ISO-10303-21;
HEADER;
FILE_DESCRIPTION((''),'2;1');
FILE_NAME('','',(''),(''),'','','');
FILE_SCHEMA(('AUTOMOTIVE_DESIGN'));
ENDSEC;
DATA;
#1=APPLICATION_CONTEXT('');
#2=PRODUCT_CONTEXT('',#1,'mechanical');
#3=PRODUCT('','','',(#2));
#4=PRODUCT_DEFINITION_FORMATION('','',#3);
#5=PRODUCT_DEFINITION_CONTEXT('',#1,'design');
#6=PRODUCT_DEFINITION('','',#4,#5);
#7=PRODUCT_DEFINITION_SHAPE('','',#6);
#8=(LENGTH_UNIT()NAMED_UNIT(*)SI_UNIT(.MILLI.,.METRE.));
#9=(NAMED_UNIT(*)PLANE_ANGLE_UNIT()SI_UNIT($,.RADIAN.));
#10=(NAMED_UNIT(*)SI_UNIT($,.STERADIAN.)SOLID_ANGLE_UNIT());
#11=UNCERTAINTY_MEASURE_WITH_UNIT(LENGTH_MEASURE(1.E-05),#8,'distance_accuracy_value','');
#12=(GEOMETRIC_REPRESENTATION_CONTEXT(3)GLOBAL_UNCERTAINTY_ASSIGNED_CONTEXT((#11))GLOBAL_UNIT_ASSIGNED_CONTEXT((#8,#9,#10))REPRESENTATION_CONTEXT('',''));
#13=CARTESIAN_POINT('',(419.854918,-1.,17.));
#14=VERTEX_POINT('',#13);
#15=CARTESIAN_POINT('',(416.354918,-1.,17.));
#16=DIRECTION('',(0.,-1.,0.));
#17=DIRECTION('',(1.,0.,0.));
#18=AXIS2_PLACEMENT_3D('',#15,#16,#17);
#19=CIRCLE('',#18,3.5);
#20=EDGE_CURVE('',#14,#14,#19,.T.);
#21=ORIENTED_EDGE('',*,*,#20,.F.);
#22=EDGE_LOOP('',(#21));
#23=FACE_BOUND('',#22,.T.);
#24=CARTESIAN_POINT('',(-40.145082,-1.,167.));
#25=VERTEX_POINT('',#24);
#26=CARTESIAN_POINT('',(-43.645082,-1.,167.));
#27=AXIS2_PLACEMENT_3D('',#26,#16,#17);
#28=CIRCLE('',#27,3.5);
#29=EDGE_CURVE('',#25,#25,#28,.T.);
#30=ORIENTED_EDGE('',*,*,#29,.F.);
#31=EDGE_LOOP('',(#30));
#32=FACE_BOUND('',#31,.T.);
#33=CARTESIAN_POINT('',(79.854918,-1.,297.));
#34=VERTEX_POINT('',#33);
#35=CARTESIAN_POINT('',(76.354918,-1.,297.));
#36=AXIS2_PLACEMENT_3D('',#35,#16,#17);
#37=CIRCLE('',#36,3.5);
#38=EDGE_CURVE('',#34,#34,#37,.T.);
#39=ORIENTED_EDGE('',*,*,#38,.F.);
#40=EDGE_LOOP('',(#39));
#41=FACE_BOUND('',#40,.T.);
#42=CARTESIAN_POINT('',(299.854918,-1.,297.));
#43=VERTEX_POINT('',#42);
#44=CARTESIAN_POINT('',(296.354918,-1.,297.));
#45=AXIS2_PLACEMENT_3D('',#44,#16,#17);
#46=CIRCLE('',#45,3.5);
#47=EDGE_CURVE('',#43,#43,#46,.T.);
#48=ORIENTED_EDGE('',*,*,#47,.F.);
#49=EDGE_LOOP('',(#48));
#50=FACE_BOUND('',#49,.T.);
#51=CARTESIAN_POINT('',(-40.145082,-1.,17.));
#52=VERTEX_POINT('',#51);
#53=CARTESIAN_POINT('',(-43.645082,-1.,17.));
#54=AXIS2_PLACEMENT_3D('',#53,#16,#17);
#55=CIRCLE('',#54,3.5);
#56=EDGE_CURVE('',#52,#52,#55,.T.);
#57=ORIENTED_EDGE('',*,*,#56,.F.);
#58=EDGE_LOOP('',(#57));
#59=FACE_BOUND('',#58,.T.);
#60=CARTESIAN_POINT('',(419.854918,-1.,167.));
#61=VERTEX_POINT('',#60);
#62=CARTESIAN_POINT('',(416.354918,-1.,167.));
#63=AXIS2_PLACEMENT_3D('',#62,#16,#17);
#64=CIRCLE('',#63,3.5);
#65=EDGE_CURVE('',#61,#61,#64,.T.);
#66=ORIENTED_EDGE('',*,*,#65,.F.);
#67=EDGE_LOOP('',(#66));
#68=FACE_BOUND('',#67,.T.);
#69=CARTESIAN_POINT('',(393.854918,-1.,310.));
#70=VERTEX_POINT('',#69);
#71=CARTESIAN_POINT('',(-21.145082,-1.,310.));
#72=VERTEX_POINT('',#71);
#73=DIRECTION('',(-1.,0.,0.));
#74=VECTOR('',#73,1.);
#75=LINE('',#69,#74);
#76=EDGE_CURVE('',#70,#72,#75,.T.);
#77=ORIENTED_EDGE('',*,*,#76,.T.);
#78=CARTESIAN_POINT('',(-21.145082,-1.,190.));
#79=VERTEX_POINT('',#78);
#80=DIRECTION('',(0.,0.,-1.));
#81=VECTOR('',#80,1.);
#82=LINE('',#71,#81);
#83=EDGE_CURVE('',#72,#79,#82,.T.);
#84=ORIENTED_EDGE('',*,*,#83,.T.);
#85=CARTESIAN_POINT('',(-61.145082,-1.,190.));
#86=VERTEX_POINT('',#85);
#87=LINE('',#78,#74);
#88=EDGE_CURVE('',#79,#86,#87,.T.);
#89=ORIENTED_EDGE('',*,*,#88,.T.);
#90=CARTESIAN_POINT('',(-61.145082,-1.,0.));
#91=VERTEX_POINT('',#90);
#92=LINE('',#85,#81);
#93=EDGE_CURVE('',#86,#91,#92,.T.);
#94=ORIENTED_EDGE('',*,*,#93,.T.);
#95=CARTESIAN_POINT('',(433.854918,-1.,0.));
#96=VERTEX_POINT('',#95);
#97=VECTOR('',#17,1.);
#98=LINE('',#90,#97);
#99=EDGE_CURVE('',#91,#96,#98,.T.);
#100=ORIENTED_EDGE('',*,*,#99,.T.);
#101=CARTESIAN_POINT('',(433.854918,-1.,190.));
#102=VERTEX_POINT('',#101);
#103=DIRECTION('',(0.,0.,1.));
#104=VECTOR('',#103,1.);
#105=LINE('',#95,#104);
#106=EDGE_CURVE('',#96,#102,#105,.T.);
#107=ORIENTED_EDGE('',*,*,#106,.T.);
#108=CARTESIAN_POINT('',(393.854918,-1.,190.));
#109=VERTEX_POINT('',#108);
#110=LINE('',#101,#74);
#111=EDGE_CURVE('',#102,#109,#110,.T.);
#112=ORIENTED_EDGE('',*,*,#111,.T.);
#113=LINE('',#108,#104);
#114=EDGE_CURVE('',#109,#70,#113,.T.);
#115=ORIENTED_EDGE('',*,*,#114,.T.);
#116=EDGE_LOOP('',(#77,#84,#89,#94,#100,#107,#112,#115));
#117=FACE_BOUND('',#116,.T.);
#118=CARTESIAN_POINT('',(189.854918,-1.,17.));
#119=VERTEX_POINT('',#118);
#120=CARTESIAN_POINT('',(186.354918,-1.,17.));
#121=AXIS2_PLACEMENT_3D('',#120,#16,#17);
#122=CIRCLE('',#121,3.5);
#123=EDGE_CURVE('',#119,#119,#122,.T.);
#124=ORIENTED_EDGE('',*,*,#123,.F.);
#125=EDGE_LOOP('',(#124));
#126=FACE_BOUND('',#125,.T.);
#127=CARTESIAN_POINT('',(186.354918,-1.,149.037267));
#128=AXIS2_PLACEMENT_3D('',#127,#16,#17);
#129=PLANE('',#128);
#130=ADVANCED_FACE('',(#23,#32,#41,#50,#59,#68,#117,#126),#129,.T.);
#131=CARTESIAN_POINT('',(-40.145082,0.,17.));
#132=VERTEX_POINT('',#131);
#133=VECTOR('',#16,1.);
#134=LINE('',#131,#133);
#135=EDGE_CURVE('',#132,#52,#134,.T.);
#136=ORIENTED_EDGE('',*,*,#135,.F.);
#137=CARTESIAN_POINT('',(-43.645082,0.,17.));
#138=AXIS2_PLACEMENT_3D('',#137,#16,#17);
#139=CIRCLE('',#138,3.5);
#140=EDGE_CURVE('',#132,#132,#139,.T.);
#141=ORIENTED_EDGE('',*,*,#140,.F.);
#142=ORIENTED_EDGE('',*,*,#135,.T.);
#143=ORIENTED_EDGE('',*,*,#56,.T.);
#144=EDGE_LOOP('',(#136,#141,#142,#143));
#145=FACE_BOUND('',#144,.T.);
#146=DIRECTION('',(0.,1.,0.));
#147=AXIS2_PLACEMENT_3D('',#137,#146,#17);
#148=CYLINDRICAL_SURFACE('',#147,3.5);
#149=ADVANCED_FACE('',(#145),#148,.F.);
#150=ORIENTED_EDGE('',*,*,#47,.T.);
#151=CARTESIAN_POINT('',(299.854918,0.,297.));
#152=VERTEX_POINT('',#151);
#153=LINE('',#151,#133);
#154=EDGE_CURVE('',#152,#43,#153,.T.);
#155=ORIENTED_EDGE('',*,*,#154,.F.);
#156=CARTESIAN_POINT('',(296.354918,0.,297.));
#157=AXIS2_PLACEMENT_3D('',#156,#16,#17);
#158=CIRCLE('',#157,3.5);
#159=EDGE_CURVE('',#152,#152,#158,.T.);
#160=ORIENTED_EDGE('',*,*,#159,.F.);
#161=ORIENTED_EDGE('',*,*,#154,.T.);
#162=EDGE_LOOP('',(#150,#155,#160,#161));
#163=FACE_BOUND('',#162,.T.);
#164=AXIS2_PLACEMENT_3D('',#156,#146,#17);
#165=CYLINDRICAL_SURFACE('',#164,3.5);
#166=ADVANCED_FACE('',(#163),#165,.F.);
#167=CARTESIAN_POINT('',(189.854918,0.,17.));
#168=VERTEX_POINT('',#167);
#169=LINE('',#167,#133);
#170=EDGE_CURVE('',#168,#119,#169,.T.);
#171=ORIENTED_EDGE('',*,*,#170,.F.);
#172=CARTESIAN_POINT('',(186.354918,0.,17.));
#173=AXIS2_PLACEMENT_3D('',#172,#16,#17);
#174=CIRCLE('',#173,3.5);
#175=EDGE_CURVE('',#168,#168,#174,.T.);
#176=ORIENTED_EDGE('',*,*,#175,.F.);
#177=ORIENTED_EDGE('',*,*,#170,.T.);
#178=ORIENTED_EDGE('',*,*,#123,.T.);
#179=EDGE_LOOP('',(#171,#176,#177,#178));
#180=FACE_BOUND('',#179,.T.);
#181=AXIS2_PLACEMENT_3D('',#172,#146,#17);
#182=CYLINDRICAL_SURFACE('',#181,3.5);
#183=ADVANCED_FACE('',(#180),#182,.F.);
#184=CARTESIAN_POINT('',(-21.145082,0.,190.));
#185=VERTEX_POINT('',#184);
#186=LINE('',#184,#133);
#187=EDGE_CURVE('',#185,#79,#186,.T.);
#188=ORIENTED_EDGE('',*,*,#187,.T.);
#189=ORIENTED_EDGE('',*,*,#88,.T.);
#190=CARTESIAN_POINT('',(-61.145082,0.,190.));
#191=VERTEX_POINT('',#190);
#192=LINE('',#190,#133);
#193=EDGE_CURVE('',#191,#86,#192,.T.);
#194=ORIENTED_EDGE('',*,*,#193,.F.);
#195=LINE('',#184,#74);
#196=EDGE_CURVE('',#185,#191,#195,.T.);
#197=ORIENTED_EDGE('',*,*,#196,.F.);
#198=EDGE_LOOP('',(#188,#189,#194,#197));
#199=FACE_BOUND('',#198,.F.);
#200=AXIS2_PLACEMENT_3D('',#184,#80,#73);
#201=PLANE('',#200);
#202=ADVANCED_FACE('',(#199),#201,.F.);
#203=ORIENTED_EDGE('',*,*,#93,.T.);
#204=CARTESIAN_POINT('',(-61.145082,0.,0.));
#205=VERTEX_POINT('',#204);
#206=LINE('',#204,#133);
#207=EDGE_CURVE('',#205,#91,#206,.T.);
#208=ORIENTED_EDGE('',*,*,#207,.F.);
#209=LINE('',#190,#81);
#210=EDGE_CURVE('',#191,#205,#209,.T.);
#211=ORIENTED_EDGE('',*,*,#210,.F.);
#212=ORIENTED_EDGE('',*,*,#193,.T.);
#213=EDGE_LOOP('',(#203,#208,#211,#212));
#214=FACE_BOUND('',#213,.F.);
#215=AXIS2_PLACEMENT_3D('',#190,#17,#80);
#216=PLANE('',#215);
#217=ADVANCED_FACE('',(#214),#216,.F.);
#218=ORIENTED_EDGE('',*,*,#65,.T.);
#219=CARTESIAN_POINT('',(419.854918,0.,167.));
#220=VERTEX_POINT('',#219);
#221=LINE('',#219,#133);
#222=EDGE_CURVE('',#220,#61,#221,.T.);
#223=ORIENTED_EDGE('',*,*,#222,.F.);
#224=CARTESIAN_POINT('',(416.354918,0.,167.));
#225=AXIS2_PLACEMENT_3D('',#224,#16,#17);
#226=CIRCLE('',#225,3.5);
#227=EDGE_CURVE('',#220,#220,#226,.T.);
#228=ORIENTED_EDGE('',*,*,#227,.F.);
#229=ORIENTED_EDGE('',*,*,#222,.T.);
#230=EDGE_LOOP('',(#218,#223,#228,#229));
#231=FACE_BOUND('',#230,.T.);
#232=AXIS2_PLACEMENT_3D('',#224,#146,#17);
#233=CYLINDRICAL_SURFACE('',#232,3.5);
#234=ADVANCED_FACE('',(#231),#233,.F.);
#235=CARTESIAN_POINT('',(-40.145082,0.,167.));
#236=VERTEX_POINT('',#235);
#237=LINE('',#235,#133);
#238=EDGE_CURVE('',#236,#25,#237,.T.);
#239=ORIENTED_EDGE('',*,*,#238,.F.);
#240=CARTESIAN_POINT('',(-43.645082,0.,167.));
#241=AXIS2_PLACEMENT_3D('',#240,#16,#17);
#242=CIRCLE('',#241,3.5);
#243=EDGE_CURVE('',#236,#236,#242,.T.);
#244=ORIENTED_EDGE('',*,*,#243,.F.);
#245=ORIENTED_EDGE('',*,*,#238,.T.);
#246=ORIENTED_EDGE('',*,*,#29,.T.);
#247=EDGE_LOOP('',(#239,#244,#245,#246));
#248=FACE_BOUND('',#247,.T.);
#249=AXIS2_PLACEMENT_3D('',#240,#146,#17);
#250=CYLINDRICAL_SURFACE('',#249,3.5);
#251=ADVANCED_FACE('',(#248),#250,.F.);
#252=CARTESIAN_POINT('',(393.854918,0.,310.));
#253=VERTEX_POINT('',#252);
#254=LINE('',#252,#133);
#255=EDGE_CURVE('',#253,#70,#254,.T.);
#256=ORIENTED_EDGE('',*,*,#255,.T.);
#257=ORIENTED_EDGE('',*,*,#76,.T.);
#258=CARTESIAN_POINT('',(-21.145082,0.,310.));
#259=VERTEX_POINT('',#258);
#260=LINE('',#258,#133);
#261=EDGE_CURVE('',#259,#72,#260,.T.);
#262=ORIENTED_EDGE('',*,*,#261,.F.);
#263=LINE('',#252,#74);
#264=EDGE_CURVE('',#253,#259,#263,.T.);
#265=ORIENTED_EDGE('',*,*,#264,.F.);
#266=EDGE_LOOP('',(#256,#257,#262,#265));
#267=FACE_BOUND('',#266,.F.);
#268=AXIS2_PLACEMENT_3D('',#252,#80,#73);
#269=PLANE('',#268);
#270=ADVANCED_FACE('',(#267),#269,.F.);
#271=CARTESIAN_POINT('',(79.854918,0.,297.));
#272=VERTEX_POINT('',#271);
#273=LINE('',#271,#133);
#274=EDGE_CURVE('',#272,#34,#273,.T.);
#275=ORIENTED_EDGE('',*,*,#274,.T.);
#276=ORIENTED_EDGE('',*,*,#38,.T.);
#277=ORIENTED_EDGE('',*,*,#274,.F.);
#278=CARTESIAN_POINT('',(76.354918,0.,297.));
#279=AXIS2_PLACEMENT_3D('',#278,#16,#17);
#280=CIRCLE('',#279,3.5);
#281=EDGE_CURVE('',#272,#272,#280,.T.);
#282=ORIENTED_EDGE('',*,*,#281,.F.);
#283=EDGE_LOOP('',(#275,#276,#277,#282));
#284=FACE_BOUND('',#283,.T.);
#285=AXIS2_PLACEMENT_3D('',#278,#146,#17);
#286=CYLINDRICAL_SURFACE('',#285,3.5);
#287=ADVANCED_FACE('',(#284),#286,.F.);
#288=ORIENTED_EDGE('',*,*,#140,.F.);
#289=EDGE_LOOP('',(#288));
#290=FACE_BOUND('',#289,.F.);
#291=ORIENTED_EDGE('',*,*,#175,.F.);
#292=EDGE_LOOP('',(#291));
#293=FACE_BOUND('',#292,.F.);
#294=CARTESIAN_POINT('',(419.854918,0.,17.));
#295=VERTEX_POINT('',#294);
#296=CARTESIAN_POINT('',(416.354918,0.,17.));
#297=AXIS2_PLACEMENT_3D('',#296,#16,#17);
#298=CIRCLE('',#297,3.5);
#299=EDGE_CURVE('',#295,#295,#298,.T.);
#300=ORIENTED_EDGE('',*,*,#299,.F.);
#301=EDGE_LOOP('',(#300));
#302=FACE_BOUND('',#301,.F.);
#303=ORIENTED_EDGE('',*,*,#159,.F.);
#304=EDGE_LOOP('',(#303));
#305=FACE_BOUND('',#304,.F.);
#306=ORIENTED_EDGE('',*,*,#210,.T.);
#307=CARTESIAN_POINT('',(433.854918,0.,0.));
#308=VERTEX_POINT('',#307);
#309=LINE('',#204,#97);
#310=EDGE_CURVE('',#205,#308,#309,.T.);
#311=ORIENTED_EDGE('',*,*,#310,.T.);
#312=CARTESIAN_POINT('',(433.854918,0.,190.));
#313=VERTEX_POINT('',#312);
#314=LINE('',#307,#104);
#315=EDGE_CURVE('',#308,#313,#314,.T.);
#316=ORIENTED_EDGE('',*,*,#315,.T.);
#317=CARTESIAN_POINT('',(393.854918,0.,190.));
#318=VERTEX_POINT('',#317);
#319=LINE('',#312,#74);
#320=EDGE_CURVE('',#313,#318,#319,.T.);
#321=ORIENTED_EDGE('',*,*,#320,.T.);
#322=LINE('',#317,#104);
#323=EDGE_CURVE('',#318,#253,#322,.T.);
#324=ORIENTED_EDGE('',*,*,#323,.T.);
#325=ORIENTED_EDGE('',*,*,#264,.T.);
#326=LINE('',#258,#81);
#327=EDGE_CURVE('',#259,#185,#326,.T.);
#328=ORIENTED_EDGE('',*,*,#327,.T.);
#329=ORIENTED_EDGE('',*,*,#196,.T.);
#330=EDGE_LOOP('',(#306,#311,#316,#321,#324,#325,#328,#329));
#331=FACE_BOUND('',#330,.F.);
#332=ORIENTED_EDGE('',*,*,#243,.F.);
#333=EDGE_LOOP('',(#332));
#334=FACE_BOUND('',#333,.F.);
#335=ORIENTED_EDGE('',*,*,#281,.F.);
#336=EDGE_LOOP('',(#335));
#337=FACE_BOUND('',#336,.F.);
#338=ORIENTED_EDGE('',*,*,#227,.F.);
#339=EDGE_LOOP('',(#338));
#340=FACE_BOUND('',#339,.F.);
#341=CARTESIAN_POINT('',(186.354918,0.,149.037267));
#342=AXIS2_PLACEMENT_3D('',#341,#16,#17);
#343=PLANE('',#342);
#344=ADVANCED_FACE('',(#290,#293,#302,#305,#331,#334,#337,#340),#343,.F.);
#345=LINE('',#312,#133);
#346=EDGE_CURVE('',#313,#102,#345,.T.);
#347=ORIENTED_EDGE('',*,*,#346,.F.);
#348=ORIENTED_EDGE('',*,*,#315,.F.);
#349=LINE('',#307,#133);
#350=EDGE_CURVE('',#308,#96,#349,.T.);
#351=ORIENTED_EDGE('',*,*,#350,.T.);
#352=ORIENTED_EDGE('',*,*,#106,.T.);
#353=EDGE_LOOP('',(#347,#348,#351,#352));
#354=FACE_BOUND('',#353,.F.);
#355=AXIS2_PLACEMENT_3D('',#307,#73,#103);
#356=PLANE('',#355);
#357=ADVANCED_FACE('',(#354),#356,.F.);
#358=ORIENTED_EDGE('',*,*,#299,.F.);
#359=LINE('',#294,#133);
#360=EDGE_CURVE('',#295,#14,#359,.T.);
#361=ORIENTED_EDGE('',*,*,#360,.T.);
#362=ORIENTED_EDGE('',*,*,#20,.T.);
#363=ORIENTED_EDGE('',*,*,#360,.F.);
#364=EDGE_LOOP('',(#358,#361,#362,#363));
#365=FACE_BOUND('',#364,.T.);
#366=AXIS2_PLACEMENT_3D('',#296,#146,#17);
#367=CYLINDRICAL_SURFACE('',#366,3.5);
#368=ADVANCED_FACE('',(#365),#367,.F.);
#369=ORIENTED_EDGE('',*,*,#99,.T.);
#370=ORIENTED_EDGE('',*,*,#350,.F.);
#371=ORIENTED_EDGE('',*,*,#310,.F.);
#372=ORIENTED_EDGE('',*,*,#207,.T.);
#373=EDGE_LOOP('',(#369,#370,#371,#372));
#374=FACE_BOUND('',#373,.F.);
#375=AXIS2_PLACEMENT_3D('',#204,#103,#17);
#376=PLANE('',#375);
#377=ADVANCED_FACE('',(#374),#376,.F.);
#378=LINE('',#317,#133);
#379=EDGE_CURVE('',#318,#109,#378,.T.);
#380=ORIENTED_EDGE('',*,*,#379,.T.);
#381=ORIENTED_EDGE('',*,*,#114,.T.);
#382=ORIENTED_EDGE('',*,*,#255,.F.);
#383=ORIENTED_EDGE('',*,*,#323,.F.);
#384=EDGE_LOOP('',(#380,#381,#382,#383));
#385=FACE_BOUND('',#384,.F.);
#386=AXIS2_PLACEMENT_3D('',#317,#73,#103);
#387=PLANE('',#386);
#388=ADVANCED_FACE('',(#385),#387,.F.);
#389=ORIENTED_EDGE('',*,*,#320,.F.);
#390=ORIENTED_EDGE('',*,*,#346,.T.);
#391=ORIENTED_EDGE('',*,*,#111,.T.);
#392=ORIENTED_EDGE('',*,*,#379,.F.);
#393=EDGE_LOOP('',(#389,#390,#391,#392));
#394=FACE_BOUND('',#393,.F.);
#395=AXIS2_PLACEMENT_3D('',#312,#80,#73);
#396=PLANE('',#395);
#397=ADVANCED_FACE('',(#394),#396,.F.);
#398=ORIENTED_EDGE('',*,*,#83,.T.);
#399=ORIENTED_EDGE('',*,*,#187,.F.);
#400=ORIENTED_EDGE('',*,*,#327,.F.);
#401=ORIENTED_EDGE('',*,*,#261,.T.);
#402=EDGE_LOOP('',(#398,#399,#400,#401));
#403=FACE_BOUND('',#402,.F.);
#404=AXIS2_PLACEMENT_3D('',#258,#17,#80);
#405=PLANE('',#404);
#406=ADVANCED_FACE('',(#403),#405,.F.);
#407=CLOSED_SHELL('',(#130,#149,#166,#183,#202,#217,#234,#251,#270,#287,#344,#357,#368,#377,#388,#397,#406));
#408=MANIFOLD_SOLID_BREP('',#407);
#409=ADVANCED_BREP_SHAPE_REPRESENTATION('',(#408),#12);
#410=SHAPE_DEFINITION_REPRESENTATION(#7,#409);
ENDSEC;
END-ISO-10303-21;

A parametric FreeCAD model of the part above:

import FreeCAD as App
import Part
import Sketcher

V = App.Vector

doc = App.newDocument("Part")
body = doc.addObject("PartDesign::Body", "Body")

sketch1 = body.newObject("Sketcher::SketchObject", "Sketch")
sketch1.AttachmentSupport = (doc.getObject("XZ_Plane"), [""])
sketch1.MapMode = "FlatFace"
sketch1.addGeometry(Part.LineSegment(V(-61.1, 190, 0), V(-61.1, 0, 0)), False)
sketch1.addGeometry(Part.LineSegment(V(-61.1, 0, 0), V(433.9, 0, 0)), False)
sketch1.addGeometry(Part.LineSegment(V(433.9, 0, 0), V(433.9, 190, 0)), False)
sketch1.addGeometry(Part.LineSegment(V(433.9, 190, 0), V(393.9, 190, 0)), False)
sketch1.addGeometry(Part.LineSegment(V(393.9, 190, 0), V(393.9, 310, 0)), False)
sketch1.addGeometry(Part.LineSegment(V(393.9, 310, 0), V(-21.1, 310, 0)), False)
sketch1.addGeometry(Part.LineSegment(V(-21.1, 310, 0), V(-21.1, 190, 0)), False)
sketch1.addGeometry(Part.LineSegment(V(-21.1, 190, 0), V(-61.1, 190, 0)), False)
sketch1.addGeometry(Part.Circle(V(-43.6, 17, 0), V(0, 0, 1), 3.5), False)
sketch1.addGeometry(Part.Circle(V(186.4, 17, 0), V(0, 0, 1), 3.5), False)
sketch1.addGeometry(Part.Circle(V(416.4, 17, 0), V(0, 0, 1), 3.5), False)
sketch1.addGeometry(Part.Circle(V(-43.6, 167, 0), V(0, 0, 1), 3.5), False)
sketch1.addGeometry(Part.Circle(V(76.4, 297, 0), V(0, 0, 1), 3.5), False)
sketch1.addGeometry(Part.Circle(V(416.4, 167, 0), V(0, 0, 1), 3.5), False)
sketch1.addGeometry(Part.Circle(V(296.4, 297, 0), V(0, 0, 1), 3.5), False)
sketch1.addConstraint(Sketcher.Constraint("Coincident", 0, 2, 1, 1))
sketch1.addConstraint(Sketcher.Constraint("Coincident", 1, 2, 2, 1))
sketch1.addConstraint(Sketcher.Constraint("Coincident", 2, 2, 3, 1))
sketch1.addConstraint(Sketcher.Constraint("Coincident", 3, 2, 4, 1))
sketch1.addConstraint(Sketcher.Constraint("Coincident", 4, 2, 5, 1))
sketch1.addConstraint(Sketcher.Constraint("Coincident", 5, 2, 6, 1))
sketch1.addConstraint(Sketcher.Constraint("Coincident", 6, 2, 7, 1))
sketch1.addConstraint(Sketcher.Constraint("Coincident", 7, 2, 0, 1))
sketch1.addConstraint(Sketcher.Constraint("Vertical", 0))
sketch1.addConstraint(Sketcher.Constraint("Horizontal", 1))
sketch1.addConstraint(Sketcher.Constraint("Vertical", 2))
sketch1.addConstraint(Sketcher.Constraint("Horizontal", 3))
sketch1.addConstraint(Sketcher.Constraint("Vertical", 4))
sketch1.addConstraint(Sketcher.Constraint("Horizontal", 5))
sketch1.addConstraint(Sketcher.Constraint("Vertical", 6))
sketch1.addConstraint(Sketcher.Constraint("Horizontal", 7))
sketch1.addConstraint(Sketcher.Constraint("Equal", 8, 9))
sketch1.addConstraint(Sketcher.Constraint("Equal", 9, 10))
sketch1.addConstraint(Sketcher.Constraint("Equal", 10, 11))
sketch1.addConstraint(Sketcher.Constraint("Equal", 11, 12))
sketch1.addConstraint(Sketcher.Constraint("Equal", 12, 13))
sketch1.addConstraint(Sketcher.Constraint("Equal", 13, 14))
sketch1.addConstraint(Sketcher.Constraint("PointOnObject", 0, 2, -1))
sketch1.addConstraint(Sketcher.Constraint("Horizontal", 8, 3, 9, 3))
sketch1.addConstraint(Sketcher.Constraint("Horizontal", 9, 3, 10, 3))
sketch1.addConstraint(Sketcher.Constraint("Horizontal", 11, 3, 13, 3))
sketch1.addConstraint(Sketcher.Constraint("Horizontal", 12, 3, 14, 3))
sketch1.addConstraint(Sketcher.Constraint("Horizontal", 3, 2, 6, 2))
sketch1.addConstraint(Sketcher.Constraint("Vertical", 8, 3, 11, 3))
sketch1.addConstraint(Sketcher.Constraint("Vertical", 10, 3, 13, 3))
sketch1.addConstraint(Sketcher.Constraint("Equal", 3, 7))
sketch1.addConstraint(Sketcher.Constraint("Diameter", 8, 7.0))
sketch1.addConstraint(Sketcher.Constraint("DistanceX", 1, 1, 1, 2, 495.0))
sketch1.addConstraint(Sketcher.Constraint("DistanceX", 3, 2, 3, 1, 40.0))
sketch1.addConstraint(Sketcher.Constraint("DistanceY", 0, 2, 0, 1, 190.0))
sketch1.addConstraint(Sketcher.Constraint("DistanceY", 4, 1, 4, 2, 120.0))
sketch1.addConstraint(Sketcher.Constraint("DistanceY", -1, 1, 8, 3, 17.0))
sketch1.addConstraint(Sketcher.Constraint("DistanceY", -1, 1, 11, 3, 167.0))
sketch1.addConstraint(Sketcher.Constraint("DistanceY", -1, 1, 12, 3, 297.0))
sketch1.addConstraint(Sketcher.Constraint("DistanceX", 8, 3, 9, 3, 230.0))
sketch1.addConstraint(Sketcher.Constraint("DistanceX", 9, 3, 10, 3, 230.0))
sketch1.addConstraint(Sketcher.Constraint("DistanceX", 11, 3, 12, 3, 120.0))
sketch1.addConstraint(Sketcher.Constraint("DistanceX", 14, 3, 13, 3, 120.0))
sketch1.addConstraint(Sketcher.Constraint("DistanceX", 0, 2, 8, 3, 17.5))
sketch1.addConstraint(Sketcher.Constraint("DistanceX", -1, 1, 9, 3, 186.354918))
pad1 = body.newObject("PartDesign::Pad", "Pad")
pad1.Profile = sketch1
pad1.Length = 1

doc.recompute()
